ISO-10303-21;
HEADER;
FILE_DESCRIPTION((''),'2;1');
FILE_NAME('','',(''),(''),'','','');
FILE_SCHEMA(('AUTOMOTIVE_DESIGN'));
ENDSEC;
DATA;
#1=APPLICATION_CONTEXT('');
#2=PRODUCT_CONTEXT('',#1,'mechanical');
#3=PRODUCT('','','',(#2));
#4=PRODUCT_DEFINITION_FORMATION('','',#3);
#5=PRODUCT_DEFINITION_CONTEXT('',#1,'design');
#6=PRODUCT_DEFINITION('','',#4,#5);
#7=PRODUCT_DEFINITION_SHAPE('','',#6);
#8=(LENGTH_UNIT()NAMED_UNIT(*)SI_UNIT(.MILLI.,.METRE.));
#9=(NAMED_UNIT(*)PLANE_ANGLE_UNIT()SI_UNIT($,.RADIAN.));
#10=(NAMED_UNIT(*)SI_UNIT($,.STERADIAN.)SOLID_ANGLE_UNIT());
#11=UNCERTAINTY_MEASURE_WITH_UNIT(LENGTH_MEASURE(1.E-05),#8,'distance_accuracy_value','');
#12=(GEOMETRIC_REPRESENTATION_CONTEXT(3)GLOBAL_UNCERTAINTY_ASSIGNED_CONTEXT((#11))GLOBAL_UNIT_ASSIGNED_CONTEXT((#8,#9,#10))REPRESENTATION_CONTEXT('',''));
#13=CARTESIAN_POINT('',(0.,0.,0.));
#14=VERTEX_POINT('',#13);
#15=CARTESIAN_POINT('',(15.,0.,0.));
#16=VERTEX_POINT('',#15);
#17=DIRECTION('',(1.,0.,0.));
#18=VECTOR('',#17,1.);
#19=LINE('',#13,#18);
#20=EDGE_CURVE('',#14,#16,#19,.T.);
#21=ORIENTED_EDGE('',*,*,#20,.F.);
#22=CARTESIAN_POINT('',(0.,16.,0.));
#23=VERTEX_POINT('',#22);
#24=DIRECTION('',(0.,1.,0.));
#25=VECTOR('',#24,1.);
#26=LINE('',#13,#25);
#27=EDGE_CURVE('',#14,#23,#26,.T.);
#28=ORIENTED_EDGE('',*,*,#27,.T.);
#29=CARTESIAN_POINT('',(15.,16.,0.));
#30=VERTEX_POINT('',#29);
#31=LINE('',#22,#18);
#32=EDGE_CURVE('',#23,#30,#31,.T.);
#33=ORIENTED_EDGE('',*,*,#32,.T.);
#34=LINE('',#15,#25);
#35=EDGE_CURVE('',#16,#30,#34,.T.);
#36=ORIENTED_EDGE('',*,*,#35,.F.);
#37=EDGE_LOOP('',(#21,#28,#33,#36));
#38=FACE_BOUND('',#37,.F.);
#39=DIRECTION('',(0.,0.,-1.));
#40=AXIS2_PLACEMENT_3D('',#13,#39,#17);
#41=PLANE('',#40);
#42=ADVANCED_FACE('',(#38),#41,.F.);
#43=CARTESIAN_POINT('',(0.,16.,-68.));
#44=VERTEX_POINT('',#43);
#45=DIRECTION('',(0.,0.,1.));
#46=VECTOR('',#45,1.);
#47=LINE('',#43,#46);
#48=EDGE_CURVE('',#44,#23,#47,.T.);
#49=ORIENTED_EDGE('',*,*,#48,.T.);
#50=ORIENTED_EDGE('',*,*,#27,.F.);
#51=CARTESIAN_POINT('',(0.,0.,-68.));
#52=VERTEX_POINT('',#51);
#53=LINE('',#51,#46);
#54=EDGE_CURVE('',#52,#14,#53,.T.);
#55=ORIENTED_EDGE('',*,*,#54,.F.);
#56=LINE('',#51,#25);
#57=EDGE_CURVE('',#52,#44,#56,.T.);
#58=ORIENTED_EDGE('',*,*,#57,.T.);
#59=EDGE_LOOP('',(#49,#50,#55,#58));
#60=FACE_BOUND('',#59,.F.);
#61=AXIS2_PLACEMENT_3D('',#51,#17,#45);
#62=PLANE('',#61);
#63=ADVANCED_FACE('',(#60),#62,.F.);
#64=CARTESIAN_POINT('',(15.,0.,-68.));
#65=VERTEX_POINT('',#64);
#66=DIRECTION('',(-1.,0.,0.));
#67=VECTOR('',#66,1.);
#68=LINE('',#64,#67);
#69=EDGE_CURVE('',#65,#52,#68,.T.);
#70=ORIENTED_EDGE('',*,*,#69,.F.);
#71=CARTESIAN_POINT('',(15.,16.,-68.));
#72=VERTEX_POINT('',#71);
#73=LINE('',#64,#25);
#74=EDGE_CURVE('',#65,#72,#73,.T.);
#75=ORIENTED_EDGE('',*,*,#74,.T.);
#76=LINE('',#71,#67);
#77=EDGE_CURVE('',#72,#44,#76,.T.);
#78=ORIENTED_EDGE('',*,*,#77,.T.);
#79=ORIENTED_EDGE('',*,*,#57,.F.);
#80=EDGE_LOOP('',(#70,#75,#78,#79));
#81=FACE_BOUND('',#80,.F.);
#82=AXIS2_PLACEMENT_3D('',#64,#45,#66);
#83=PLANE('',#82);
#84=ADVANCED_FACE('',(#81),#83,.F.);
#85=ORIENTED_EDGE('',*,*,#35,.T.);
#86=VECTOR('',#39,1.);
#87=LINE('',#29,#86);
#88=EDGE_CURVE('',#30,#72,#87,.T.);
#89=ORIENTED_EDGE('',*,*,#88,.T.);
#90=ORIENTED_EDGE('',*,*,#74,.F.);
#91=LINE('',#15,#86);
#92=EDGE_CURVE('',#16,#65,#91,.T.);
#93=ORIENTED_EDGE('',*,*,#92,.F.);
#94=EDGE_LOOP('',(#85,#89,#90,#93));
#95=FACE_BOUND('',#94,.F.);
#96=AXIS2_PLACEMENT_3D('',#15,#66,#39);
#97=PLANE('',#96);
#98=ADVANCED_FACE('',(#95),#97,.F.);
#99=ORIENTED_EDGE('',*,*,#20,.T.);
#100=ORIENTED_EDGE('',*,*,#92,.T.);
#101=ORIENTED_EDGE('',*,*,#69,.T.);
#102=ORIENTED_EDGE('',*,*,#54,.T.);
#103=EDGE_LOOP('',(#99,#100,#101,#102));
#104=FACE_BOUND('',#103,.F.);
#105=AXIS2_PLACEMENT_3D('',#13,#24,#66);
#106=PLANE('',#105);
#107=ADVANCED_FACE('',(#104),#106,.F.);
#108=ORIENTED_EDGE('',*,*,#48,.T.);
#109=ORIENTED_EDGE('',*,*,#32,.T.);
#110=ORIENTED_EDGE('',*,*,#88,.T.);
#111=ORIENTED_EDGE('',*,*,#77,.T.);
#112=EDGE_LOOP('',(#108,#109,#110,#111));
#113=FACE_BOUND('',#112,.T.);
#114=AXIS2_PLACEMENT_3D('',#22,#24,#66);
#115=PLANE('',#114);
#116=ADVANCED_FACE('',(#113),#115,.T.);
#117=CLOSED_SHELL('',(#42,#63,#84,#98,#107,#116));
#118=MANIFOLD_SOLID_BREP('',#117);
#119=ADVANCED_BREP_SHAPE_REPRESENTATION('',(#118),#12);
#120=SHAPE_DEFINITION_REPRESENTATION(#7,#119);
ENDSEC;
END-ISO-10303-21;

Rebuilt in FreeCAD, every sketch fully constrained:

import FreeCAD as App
import Part
import Sketcher

doc = App.newDocument("Part")
body = doc.addObject("PartDesign::Body", "Body")

sketch1 = doc.addObject("Sketcher::SketchObject", "Sketch")
body.addObject(sketch1)
sketch1.AttachmentSupport = (doc.XZ_Plane, [""])
sketch1.MapMode = "FlatFace"
sketch1.addGeometry(Part.LineSegment(App.Vector(0, -68, 0), App.Vector(0, 0, 0)), False)
sketch1.addGeometry(Part.LineSegment(App.Vector(0, 0, 0), App.Vector(15, 0, 0)), False)
sketch1.addGeometry(Part.LineSegment(App.Vector(15, 0, 0), App.Vector(15, -68, 0)), False)
sketch1.addGeometry(Part.LineSegment(App.Vector(15, -68, 0), App.Vector(0, -68, 0)), False)
sketch1.addConstraint(Sketcher.Constraint("Coincident", 0, 2, 1, 1))
sketch1.addConstraint(Sketcher.Constraint("Coincident", 1, 2, 2, 1))
sketch1.addConstraint(Sketcher.Constraint("Coincident", 2, 2, 3, 1))
sketch1.addConstraint(Sketcher.Constraint("Coincident", 3, 2, 0, 1))
sketch1.addConstraint(Sketcher.Constraint("Vertical", 0))
sketch1.addConstraint(Sketcher.Constraint("Horizontal", 1))
sketch1.addConstraint(Sketcher.Constraint("Vertical", 2))
sketch1.addConstraint(Sketcher.Constraint("Horizontal", 3))
sketch1.addConstraint(Sketcher.Constraint("Coincident", 0, 2, -1, 1))
sketch1.addConstraint(Sketcher.Constraint("DistanceX", 1, 1, 1, 2, 15.0))
sketch1.addConstraint(Sketcher.Constraint("DistanceY", 0, 1, 0, 2, 68.0))
pad1 = doc.addObject("PartDesign::Pad", "Pad")
body.addObject(pad1)
pad1.Profile = sketch1
pad1.Length = 16
pad1.Reversed = True

doc.recompute()
